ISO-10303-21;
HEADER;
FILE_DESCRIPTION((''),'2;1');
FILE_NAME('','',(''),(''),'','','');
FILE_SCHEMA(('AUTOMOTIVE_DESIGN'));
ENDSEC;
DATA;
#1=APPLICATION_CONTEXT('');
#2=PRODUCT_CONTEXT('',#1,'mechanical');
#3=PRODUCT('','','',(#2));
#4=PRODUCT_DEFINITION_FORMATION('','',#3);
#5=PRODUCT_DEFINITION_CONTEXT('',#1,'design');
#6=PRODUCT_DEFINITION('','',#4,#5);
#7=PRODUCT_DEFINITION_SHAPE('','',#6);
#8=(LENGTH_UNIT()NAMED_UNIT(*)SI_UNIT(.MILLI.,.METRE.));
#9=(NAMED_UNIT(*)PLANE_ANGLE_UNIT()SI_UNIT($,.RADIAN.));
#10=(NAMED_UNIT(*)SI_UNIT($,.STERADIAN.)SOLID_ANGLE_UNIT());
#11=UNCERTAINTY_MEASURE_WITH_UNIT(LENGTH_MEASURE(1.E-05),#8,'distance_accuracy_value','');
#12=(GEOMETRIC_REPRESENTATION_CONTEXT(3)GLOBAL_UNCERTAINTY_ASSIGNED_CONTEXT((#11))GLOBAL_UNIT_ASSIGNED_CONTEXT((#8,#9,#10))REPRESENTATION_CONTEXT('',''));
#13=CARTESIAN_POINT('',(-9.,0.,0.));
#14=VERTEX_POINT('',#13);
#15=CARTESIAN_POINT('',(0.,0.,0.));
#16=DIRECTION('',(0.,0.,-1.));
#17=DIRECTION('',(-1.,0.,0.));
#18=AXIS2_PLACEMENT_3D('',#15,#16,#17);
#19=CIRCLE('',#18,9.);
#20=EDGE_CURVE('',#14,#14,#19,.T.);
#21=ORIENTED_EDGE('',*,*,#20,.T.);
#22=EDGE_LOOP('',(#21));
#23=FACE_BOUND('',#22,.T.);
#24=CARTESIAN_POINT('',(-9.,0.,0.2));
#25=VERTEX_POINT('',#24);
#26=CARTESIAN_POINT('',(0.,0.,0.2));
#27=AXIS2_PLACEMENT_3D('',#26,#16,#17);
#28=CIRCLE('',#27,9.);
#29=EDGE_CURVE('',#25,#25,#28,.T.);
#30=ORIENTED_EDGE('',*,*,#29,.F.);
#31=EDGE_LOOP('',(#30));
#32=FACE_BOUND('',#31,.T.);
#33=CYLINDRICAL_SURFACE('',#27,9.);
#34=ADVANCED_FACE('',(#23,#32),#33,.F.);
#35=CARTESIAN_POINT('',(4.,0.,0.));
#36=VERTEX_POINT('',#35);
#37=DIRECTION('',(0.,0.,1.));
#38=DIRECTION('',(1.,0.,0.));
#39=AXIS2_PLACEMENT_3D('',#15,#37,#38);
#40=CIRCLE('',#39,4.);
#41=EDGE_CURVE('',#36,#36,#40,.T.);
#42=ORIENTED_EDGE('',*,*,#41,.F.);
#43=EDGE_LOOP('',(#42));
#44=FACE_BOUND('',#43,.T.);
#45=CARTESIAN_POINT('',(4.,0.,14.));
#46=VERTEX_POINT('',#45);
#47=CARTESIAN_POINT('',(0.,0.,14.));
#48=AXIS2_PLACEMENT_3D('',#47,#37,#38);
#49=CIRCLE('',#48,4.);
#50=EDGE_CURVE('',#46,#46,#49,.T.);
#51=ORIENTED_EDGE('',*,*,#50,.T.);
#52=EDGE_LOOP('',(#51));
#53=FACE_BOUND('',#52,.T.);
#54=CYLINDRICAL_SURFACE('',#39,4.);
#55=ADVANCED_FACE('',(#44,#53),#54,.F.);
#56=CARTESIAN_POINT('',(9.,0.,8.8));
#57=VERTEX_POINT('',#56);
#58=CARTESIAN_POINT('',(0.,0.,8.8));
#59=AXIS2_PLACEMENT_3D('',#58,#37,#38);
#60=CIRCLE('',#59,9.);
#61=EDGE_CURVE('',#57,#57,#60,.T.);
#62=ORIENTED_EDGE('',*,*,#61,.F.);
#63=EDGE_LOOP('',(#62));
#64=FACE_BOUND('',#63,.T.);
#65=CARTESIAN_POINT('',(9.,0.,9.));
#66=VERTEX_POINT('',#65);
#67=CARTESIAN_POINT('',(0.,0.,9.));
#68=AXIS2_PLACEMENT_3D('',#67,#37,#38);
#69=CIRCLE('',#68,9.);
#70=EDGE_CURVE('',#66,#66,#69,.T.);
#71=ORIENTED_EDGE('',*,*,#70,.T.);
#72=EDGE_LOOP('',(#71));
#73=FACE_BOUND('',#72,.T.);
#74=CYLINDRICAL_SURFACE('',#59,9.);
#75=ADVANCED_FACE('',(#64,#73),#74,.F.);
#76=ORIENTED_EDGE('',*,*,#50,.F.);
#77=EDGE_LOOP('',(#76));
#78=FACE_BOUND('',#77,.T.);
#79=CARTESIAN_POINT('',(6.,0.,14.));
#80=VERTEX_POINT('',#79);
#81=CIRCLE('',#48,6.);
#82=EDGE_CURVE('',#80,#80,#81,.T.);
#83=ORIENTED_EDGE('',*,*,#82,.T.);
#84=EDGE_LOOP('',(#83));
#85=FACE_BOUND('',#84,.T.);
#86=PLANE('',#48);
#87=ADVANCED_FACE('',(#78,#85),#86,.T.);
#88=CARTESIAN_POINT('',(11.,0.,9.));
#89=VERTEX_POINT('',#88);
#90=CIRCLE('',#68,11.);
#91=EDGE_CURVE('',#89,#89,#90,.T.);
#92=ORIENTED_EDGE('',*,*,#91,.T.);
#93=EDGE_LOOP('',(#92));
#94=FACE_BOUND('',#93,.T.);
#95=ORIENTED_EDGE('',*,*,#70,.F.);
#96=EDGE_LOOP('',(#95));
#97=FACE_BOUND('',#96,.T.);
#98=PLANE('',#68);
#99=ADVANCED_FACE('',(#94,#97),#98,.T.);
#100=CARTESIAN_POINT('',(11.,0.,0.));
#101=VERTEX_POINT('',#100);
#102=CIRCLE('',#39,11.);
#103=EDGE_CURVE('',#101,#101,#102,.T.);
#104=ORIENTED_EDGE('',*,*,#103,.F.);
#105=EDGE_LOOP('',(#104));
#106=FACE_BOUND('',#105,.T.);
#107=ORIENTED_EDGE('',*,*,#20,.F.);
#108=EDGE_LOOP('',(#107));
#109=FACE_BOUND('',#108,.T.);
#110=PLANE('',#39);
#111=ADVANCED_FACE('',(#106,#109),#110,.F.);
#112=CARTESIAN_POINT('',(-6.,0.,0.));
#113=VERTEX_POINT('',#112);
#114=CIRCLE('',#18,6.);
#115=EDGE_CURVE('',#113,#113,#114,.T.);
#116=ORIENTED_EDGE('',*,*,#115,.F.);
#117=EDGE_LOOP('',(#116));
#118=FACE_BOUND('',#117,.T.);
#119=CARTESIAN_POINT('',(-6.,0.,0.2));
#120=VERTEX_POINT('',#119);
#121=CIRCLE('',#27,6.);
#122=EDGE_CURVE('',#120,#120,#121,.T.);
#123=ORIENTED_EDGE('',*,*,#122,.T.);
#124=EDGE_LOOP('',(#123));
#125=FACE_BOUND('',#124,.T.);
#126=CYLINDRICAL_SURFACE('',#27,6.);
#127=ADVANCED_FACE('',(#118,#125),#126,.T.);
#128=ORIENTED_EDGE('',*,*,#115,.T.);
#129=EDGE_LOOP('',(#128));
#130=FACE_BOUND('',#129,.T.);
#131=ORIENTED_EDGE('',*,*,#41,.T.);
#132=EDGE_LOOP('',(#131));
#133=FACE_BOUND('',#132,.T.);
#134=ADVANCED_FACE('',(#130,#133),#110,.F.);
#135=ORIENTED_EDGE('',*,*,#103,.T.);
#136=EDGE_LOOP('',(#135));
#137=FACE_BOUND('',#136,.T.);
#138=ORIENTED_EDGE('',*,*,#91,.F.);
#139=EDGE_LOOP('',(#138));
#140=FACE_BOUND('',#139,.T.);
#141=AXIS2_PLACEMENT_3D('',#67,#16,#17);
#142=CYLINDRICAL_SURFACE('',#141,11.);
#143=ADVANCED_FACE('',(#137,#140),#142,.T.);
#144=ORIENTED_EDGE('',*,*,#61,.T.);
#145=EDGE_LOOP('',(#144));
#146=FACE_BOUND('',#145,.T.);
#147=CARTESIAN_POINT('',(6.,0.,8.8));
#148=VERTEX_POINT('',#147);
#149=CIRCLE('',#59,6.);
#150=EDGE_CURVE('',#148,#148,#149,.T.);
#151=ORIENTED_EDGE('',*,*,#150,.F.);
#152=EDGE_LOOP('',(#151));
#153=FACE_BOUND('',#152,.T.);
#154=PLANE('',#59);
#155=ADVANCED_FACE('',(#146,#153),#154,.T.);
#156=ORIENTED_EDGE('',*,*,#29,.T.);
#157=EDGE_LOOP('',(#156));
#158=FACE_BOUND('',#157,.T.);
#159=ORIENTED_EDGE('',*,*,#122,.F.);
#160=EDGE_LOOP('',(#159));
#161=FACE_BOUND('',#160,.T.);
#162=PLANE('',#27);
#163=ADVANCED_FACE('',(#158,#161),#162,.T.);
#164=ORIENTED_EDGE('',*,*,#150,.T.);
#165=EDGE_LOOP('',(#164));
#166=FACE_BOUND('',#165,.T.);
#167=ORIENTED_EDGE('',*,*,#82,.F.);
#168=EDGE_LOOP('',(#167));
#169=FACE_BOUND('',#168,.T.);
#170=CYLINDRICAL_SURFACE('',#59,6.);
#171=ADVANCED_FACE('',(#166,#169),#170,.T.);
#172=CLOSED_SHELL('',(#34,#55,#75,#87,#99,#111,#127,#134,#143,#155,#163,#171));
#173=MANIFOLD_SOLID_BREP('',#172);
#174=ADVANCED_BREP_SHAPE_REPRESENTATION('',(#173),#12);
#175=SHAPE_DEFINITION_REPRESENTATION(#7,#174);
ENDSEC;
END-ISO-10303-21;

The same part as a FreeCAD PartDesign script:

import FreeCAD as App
import Part
import Sketcher

V = App.Vector
Q = App.Units.Quantity

doc = App.newDocument("Part")
body = doc.addObject("PartDesign::Body", "Body")

sketch1 = body.newObject("Sketcher::SketchObject", "Sketch")
sketch1.AttachmentSupport = (doc.getObject("XY_Plane"), [""])
sketch1.MapMode = "FlatFace"
sketch1.addGeometry(Part.Circle(V(0, 0, 0), V(0, 0, 1), 11), False)
sketch1.addConstraint([
    Sketcher.Constraint("Coincident", 0, 3, -1, 1),
    Sketcher.Constraint("Diameter", 0, Q("22 mm")),
])
pad1 = body.newObject("PartDesign::Pad", "Pad")
pad1.Profile = sketch1
pad1.Length = 9

sketch2 = body.newObject("Sketcher::SketchObject", "Sketch001")
sketch2.AttachmentSupport = (doc.getObject("XY_Plane"), [""])
sketch2.MapMode = "FlatFace"
sketch2.AttachmentOffset = App.Placement(V(0, 0, 9), App.Rotation())
sketch2.addGeometry(Part.Circle(V(0, 0, 0), V(0, 0, 1), 4), False)
sketch2.addConstraint([
    Sketcher.Constraint("Coincident", 0, 3, -1, 1),
    Sketcher.Constraint("Diameter", 0, Q("8 mm")),
])
pocket1 = body.newObject("PartDesign::Pocket", "Pocket")
pocket1.Profile = sketch2
pocket1.Type = "ThroughAll"

sketch3 = body.newObject("Sketcher::SketchObject", "Sketch002")
sketch3.AttachmentSupport = (doc.getObject("XY_Plane"), [""])
sketch3.MapMode = "FlatFace"
sketch3.AttachmentOffset = App.Placement(V(0, 0, 9), App.Rotation())
sketch3.addGeometry([
    Part.Circle(V(0, 0, 0), V(0, 0, 1), 9),
    Part.Circle(V(0, 0, 0), V(0, 0, 1), 6),
], False)
sketch3.addConstraint([
    Sketcher.Constraint("Coincident", 0, 3, -1, 1),
    Sketcher.Constraint("Coincident", 1, 3, -1, 1),
    Sketcher.Constraint("Diameter", 0, Q("18 mm")),
    Sketcher.Constraint("Diameter", 1, Q("12 mm")),
])
pocket2 = body.newObject("PartDesign::Pocket", "Pocket001")
pocket2.Profile = sketch3
pocket2.Length = 0.2

sketch4 = body.newObject("Sketcher::SketchObject", "Sketch003")
sketch4.AttachmentSupport = (doc.getObject("XY_Plane"), [""])
sketch4.MapMode = "FlatFace"
sketch4.addGeometry([
    Part.Circle(V(0, 0, 0), V(0, 0, 1), 9),
    Part.Circle(V(0, 0, 0), V(0, 0, 1), 6),
], False)
sketch4.addConstraint([
    Sketcher.Constraint("Coincident", 0, 3, -1, 1),
    Sketcher.Constraint("Coincident", 1, 3, -1, 1),
    Sketcher.Constraint("Diameter", 0, Q("18 mm")),
    Sketcher.Constraint("Diameter", 1, Q("12 mm")),
])
pocket3 = body.newObject("PartDesign::Pocket", "Pocket002")
pocket3.Profile = sketch4
pocket3.Length = 0.2
pocket3.Reversed = True

sketch5 = body.newObject("Sketcher::SketchObject", "Sketch004")
sketch5.AttachmentSupport = (doc.getObject("XY_Plane"), [""])
sketch5.MapMode = "FlatFace"
sketch5.AttachmentOffset = App.Placement(V(0, 0, 9), App.Rotation())
sketch5.addGeometry([
    Part.Circle(V(0, 0, 0), V(0, 0, 1), 6),
    Part.Circle(V(0, 0, 0), V(0, 0, 1), 4),
], False)
sketch5.addConstraint([
    Sketcher.Constraint("Coincident", 0, 3, -1, 1),
    Sketcher.Constraint("Coincident", 1, 3, -1, 1),
    Sketcher.Constraint("Diameter", 0, Q("12 mm")),
    Sketcher.Constraint("Diameter", 1, Q("8 mm")),
])
pad2 = body.newObject("PartDesign::Pad", "Pad001")
pad2.Profile = sketch5
pad2.Length = 5

doc.recompute()
